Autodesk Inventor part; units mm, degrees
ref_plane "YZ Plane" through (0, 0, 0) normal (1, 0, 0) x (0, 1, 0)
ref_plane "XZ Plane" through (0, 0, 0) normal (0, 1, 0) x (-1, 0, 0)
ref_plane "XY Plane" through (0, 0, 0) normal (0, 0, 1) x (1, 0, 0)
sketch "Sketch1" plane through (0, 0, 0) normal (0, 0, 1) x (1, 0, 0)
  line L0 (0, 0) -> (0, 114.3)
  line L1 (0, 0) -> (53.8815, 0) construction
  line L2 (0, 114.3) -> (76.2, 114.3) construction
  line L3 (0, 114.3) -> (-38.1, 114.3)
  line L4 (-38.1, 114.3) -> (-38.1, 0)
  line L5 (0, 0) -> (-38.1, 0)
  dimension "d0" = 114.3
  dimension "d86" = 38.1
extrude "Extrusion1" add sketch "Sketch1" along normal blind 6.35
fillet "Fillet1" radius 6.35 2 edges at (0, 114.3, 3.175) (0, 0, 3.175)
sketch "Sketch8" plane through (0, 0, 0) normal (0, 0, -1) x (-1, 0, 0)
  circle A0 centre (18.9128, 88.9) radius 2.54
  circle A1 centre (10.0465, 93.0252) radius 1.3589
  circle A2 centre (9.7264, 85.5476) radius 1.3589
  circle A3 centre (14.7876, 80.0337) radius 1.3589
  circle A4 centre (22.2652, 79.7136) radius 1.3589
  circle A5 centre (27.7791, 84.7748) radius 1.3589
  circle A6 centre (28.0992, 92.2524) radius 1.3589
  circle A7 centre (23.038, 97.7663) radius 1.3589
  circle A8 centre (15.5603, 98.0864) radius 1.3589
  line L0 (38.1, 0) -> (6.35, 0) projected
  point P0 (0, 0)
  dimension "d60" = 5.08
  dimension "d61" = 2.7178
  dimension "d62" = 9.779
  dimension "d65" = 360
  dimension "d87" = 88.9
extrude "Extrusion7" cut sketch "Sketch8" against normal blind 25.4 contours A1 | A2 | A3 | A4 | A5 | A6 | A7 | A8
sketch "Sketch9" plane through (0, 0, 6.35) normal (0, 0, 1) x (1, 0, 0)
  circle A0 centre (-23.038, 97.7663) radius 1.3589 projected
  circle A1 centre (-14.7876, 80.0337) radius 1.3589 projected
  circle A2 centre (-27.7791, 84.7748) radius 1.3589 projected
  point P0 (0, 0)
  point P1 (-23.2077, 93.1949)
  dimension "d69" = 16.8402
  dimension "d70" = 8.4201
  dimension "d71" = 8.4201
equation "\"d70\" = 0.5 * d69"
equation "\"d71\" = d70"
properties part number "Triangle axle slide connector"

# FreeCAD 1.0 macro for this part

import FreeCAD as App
import Part
import Sketcher
from FreeCAD import Vector
Q = App.Units.Quantity


def edges_at(feature, points):
    """Names of the edges that pass closest to the given points."""
    edges = feature.Shape.Edges
    near = lambda p: min(range(len(edges)), key=lambda i: edges[i].distToShape(Part.Vertex(*p))[0])
    return sorted({f"Edge{near(p) + 1}" for p in points})


def add_polygon(sketch, points):
    """Adds a closed chain of lines whose ends are joined by coincident constraints."""
    first, n = sketch.GeometryCount, len(points)
    for a, b in zip(points, points[1:] + points[:1]):
        sketch.addGeometry(Part.LineSegment(App.Vector(*a, 0), App.Vector(*b, 0)), False)
    for i in range(n):
        sketch.addConstraint(Sketcher.Constraint("Coincident", first + i, 2, first + (i + 1) % n, 1))

doc = App.newDocument("Part")
body = doc.addObject("PartDesign::Body", "Body")

sketch1 = body.newObject("Sketcher::SketchObject", "Sketch")
sketch1.AttachmentSupport = (doc.getObject("XY_Plane"), [""])
sketch1.MapMode = "FlatFace"
add_polygon(sketch1, [(-38, 0), (0, 0), (0, 114), (-38, 114)])
sketch1.addConstraint([
    Sketcher.Constraint("Horizontal", 0),
    Sketcher.Constraint("Vertical", 1),
    Sketcher.Constraint("Horizontal", 2),
    Sketcher.Constraint("Vertical", 3),
    Sketcher.Constraint("Coincident", 0, 2, -1, 1),
    Sketcher.Constraint("DistanceX", 0, 1, 0, 2, Q("1.5 in")),
    Sketcher.Constraint("DistanceY", 1, 1, 1, 2, Q("4.5 in")),
])
pad1 = body.newObject("PartDesign::Pad", "Pad")
pad1.Profile = sketch1
pad1.Length = Q("0.25 in")
doc.recompute()

fillet = body.newObject("PartDesign::Fillet", "Fillet")
fillet.Base = (pad1, edges_at(pad1, [(0, 114.3, 3.175), (0, 0, 3.175)]))
fillet.Radius = Q("0.25 in")

sketch2 = body.newObject("Sketcher::SketchObject", "Sketch001")
sketch2.AttachmentSupport = (doc.getObject("XY_Plane"), [""])
sketch2.MapMode = "FlatFace"
sketch2.addGeometry([
    Part.Circle(Vector(-10, 93, 0), Vector(0, 0, 1), 1.4),
    Part.Circle(Vector(-9.7, 85.5, 0), Vector(0, 0, 1), 1.4),
    Part.Circle(Vector(-14.8, 80, 0), Vector(0, 0, 1), 1.4),
    Part.Circle(Vector(-22.3, 79.7, 0), Vector(0, 0, 1), 1.4),
    Part.Circle(Vector(-27.8, 84.8, 0), Vector(0, 0, 1), 1.4),
    Part.Circle(Vector(-28.1, 92.3, 0), Vector(0, 0, 1), 1.4),
    Part.Circle(Vector(-23, 97.8, 0), Vector(0, 0, 1), 1.4),
    Part.Circle(Vector(-15.6, 98.1, 0), Vector(0, 0, 1), 1.4),
], False)
sketch2.addConstraint([
    Sketcher.Constraint("Equal", 0, 1),
    Sketcher.Constraint("Equal", 1, 2),
    Sketcher.Constraint("Equal", 2, 3),
    Sketcher.Constraint("Equal", 3, 4),
    Sketcher.Constraint("Equal", 4, 5),
    Sketcher.Constraint("Equal", 5, 6),
    Sketcher.Constraint("Equal", 6, 7),
    Sketcher.Constraint("Diameter", 0, Q("0.107 in")),
    Sketcher.Constraint("DistanceX", 6, 3, -1, 1, Q("0.907 in")),
    Sketcher.Constraint("DistanceY", -1, 1, 0, 3, Q("3.6624 in")),
    Sketcher.Constraint("DistanceX", 2, 3, -1, 1, Q("0.5822 in")),
    Sketcher.Constraint("DistanceY", -1, 1, 4, 3, Q("3.3376 in")),
    Sketcher.Constraint("DistanceX", 7, 3, -1, 1, Q("0.6126 in")),
    Sketcher.Constraint("DistanceX", 0, 3, 1, 3, Q("0.0126 in")),
    Sketcher.Constraint("DistanceY", 1, 3, 0, 3, Q("0.2944 in")),
    Sketcher.Constraint("DistanceX", 3, 3, 2, 3, Q("0.2944 in")),
    Sketcher.Constraint("DistanceY", 3, 3, 2, 3, Q("0.0126 in")),
    Sketcher.Constraint("DistanceX", 5, 3, 4, 3, Q("0.0126 in")),
    Sketcher.Constraint("DistanceY", 4, 3, 5, 3, Q("0.2944 in")),
    Sketcher.Constraint("DistanceY", 6, 3, 7, 3, Q("0.0126 in")),
    Sketcher.Constraint("DistanceX", 0, 3, -1, 1, Q("10.0465 mm")),
    Sketcher.Constraint("DistanceY", -1, 1, 2, 3, Q("80.0337 mm")),
    Sketcher.Constraint("DistanceX", 4, 3, -1, 1, Q("27.779 mm")),
    Sketcher.Constraint("DistanceY", -1, 1, 6, 3, Q("97.7663 mm")),
])
pocket1 = body.newObject("PartDesign::Pocket", "Pocket")
pocket1.Profile = sketch2
pocket1.Length = Q("1 in")
pocket1.Reversed = True

doc.recompute()
